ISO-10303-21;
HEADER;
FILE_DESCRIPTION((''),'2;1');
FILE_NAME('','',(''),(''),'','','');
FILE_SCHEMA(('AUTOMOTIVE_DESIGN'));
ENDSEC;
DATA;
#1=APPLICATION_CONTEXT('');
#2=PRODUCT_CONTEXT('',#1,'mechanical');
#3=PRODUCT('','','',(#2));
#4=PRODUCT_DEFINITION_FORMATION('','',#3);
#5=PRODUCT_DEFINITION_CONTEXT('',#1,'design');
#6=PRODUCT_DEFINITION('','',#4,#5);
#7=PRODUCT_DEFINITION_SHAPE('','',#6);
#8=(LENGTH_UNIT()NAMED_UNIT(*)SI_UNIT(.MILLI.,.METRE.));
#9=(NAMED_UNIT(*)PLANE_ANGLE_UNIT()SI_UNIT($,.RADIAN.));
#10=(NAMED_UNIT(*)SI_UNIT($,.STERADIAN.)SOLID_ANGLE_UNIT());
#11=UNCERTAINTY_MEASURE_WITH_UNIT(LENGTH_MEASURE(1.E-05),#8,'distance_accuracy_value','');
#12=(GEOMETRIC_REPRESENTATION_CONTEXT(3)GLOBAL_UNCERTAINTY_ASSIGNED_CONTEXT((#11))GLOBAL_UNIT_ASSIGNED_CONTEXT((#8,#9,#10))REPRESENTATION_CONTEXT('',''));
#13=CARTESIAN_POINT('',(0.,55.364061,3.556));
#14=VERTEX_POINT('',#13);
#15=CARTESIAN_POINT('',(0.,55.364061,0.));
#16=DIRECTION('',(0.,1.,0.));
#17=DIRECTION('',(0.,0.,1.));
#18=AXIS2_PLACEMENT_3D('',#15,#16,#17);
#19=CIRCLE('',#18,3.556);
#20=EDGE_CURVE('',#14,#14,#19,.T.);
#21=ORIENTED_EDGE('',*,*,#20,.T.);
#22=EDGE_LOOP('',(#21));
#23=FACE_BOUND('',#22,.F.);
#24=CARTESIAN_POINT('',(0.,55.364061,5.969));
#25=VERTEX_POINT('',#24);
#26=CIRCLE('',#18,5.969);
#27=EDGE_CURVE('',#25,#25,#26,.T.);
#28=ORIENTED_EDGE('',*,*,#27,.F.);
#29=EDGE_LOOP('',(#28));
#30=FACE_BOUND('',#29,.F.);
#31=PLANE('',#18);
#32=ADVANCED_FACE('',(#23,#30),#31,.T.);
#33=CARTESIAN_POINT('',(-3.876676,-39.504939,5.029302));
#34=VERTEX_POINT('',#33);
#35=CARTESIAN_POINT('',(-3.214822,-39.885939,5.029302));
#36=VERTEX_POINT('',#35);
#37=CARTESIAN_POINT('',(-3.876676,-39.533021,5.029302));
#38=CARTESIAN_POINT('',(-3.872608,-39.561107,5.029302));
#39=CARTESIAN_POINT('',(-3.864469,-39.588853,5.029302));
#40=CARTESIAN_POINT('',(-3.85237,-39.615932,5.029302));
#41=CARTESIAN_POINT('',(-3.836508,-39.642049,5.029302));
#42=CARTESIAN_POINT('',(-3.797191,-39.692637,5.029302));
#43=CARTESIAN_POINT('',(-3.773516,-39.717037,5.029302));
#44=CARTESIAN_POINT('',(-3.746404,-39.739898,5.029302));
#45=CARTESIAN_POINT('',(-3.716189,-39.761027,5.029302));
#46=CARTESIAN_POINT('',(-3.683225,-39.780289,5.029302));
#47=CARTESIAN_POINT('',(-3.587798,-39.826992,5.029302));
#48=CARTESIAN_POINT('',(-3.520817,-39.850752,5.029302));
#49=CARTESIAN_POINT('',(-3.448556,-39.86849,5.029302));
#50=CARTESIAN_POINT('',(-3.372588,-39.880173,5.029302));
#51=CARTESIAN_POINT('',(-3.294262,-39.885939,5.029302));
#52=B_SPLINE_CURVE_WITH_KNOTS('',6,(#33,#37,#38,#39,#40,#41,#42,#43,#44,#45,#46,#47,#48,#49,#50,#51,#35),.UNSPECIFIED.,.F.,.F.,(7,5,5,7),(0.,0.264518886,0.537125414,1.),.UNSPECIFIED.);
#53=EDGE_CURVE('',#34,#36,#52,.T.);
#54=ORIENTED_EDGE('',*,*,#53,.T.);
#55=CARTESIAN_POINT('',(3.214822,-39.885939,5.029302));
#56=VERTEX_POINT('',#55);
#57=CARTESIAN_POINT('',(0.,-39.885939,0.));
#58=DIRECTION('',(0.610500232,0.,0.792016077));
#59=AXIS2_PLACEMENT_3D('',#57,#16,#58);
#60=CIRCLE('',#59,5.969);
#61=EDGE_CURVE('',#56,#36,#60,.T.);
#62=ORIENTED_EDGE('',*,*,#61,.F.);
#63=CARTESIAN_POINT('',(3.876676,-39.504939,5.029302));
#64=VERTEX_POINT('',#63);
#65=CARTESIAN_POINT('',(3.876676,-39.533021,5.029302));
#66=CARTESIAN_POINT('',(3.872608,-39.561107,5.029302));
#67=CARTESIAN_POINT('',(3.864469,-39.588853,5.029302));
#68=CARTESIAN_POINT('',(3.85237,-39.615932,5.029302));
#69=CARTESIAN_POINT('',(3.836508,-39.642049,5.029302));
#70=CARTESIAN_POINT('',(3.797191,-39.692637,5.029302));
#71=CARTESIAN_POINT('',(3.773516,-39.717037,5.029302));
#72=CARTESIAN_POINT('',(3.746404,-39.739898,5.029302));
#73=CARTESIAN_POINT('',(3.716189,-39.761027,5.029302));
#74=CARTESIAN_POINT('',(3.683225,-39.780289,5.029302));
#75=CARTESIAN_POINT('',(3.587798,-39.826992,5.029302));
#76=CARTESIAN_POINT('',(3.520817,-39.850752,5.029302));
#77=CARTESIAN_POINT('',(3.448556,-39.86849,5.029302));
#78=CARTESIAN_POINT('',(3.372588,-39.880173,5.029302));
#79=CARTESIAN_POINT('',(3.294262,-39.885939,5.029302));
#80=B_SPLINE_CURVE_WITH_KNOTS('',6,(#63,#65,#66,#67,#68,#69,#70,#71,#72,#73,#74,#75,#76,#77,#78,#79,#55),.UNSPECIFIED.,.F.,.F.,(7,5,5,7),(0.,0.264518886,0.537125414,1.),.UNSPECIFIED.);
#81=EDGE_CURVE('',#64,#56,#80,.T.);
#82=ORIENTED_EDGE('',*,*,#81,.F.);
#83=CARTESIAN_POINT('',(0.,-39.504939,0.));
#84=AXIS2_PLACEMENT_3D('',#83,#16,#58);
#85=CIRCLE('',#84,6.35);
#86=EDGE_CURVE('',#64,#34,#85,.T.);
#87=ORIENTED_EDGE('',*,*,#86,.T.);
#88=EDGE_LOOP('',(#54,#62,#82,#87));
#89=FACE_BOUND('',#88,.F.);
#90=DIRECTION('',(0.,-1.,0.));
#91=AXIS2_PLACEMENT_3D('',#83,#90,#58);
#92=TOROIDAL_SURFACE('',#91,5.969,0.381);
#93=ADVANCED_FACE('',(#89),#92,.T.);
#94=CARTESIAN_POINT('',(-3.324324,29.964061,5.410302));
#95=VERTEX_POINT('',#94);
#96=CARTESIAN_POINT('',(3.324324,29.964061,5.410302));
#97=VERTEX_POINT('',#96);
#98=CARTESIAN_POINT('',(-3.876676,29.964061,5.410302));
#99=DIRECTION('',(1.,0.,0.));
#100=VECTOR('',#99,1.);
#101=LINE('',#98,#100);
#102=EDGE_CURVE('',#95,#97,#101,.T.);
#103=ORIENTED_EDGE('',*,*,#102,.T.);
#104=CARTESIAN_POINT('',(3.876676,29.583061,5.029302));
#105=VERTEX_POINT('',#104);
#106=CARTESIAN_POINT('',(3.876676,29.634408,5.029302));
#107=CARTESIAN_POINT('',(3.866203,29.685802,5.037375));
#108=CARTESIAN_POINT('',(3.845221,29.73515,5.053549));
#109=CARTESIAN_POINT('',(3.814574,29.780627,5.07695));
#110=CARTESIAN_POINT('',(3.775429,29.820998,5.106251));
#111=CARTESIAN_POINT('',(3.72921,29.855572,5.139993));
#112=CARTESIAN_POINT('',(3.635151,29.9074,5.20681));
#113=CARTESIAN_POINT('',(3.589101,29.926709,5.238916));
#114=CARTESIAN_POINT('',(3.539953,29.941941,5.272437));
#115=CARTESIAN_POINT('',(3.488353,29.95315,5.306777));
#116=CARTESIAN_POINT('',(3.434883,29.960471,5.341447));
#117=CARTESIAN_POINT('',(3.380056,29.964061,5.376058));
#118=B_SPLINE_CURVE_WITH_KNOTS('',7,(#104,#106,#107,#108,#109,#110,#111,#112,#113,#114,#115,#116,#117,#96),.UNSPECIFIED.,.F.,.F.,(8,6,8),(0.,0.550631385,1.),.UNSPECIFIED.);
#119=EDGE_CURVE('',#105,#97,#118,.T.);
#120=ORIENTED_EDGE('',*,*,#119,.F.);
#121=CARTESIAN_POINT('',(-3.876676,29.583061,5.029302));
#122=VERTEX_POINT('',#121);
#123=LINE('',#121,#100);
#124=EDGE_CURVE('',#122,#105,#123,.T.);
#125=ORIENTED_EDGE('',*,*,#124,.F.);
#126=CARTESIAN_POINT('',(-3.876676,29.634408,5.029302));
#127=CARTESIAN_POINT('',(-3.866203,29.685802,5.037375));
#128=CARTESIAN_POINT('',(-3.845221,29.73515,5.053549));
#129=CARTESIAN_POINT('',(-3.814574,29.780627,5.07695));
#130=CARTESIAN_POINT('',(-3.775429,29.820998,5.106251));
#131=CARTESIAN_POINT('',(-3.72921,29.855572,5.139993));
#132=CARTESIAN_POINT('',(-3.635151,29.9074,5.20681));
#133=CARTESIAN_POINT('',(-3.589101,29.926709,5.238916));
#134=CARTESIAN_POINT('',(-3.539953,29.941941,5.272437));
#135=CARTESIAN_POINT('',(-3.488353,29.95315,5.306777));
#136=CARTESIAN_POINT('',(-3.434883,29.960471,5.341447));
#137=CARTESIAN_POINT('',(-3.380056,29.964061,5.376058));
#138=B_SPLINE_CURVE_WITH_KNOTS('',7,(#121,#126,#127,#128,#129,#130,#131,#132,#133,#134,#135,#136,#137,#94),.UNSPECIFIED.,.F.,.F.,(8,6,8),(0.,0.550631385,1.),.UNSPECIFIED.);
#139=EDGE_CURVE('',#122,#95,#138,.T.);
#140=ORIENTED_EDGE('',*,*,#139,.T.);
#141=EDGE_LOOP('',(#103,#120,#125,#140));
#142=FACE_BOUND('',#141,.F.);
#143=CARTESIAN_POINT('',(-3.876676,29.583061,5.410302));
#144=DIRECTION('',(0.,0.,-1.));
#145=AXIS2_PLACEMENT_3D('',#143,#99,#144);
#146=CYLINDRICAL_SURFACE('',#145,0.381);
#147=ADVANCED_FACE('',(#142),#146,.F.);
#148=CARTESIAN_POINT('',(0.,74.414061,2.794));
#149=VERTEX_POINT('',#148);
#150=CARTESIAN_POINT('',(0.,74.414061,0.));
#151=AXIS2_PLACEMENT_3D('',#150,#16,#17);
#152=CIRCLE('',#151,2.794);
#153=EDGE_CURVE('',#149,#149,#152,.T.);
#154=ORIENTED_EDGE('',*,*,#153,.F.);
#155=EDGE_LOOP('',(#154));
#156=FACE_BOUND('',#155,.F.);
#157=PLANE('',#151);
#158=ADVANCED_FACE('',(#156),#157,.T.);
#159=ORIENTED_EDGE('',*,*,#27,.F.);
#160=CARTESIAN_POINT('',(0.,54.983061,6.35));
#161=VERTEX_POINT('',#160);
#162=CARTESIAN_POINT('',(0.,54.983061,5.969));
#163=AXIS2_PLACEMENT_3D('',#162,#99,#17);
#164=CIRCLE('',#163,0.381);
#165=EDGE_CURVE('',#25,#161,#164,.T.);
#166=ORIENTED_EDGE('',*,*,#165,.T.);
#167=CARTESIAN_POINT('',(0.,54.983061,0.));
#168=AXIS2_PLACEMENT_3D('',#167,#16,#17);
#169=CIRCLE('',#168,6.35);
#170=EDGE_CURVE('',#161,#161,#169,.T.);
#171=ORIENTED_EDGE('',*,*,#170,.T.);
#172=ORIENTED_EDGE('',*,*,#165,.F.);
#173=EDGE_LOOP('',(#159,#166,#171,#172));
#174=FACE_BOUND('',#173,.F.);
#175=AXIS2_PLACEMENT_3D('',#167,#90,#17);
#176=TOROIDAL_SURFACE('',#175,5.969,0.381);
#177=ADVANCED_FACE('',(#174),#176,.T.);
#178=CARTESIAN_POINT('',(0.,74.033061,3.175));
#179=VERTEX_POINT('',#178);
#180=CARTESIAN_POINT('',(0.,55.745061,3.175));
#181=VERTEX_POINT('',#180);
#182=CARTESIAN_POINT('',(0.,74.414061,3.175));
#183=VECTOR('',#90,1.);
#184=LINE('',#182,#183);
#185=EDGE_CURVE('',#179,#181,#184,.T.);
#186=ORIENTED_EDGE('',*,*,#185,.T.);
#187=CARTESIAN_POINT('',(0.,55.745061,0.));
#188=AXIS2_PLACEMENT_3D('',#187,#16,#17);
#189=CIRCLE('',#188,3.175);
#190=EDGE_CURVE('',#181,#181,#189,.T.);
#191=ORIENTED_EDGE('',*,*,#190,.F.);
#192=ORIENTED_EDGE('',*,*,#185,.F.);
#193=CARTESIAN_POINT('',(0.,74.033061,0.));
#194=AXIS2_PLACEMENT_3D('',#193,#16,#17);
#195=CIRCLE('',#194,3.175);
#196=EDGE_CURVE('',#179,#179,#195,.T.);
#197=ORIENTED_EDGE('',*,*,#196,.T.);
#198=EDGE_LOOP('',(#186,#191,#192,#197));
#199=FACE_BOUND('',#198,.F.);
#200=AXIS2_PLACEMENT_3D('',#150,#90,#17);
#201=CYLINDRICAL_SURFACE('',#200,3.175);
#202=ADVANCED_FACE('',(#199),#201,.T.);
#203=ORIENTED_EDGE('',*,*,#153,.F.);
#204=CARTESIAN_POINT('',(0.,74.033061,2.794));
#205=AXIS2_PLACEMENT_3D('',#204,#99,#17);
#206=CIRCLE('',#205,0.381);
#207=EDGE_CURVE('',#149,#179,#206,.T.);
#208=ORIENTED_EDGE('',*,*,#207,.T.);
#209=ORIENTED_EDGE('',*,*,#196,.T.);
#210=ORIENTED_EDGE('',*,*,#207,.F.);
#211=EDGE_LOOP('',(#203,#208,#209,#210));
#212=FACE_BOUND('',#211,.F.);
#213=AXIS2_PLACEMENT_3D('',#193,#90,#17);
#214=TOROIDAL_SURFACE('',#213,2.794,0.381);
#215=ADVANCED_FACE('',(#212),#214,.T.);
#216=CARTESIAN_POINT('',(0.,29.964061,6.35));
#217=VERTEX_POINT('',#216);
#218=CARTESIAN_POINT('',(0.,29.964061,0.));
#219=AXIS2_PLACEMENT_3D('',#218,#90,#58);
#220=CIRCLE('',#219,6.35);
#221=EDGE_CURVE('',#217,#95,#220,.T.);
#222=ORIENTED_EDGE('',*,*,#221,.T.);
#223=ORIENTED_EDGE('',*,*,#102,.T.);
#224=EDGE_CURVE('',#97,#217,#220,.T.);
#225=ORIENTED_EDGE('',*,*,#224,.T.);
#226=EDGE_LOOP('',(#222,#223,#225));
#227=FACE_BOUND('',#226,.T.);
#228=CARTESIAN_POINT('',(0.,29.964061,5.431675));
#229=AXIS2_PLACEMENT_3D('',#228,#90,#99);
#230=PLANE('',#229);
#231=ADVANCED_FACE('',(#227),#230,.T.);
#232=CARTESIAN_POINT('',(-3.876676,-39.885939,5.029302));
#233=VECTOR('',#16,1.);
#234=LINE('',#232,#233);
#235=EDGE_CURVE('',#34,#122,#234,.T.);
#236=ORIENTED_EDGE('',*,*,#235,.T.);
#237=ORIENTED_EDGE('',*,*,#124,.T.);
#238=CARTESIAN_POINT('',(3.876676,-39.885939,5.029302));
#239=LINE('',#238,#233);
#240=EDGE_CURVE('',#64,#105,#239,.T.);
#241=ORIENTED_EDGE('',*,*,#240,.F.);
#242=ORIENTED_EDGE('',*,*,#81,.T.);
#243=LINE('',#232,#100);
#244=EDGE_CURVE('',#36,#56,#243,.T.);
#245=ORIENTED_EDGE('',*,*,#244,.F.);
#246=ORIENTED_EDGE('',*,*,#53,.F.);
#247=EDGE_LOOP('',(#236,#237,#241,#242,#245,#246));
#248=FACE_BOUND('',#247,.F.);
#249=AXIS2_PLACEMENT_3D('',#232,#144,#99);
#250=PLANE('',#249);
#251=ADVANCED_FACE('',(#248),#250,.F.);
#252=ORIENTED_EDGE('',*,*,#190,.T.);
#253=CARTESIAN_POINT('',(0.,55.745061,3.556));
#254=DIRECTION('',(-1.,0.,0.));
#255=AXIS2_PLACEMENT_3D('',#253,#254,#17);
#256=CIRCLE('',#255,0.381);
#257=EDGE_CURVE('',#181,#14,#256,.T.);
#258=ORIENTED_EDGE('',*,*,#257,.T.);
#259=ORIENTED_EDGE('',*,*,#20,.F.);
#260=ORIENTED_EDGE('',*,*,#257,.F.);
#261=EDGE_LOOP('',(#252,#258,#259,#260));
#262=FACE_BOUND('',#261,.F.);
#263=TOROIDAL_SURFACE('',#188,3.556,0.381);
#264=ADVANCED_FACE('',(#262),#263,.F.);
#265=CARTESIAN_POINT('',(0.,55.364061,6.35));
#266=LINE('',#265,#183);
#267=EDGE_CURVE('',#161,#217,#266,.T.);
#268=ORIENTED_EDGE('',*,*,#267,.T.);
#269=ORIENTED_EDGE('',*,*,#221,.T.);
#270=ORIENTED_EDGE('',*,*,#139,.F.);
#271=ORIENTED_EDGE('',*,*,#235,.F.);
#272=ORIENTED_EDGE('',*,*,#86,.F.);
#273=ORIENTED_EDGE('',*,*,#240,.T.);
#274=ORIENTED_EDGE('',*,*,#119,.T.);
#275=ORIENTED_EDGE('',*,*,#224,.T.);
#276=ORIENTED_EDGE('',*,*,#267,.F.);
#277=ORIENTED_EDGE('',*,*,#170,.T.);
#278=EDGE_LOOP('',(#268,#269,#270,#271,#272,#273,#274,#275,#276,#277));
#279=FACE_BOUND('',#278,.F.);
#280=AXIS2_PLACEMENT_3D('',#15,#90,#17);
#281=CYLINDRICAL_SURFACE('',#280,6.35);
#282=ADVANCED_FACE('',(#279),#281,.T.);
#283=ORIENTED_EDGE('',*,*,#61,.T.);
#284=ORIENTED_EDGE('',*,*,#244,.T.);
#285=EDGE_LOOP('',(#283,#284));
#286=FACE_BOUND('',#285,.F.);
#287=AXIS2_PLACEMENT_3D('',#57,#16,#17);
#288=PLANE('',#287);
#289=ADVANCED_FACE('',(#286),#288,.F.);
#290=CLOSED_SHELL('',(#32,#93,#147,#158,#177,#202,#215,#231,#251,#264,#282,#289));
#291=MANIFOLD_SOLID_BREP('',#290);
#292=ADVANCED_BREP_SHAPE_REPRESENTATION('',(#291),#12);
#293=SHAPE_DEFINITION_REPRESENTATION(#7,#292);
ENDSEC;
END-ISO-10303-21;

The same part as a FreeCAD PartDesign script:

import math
import FreeCAD as App
import Part
import Sketcher

V = App.Vector
Q = App.Units.Quantity


def edges_at(feature, points):
    """Names of the edges that pass closest to the given points."""
    edges = feature.Shape.Edges
    near = lambda p: min(range(len(edges)), key=lambda i: edges[i].distToShape(Part.Vertex(*p))[0])
    return sorted({f"Edge{near(p) + 1}" for p in points})


def add_polygon(sketch, points):
    """Adds a closed chain of lines whose ends are joined by coincident constraints."""
    first, n = sketch.GeometryCount, len(points)
    for a, b in zip(points, points[1:] + points[:1]):
        sketch.addGeometry(Part.LineSegment(App.Vector(*a, 0), App.Vector(*b, 0)), False)
    for i in range(n):
        sketch.addConstraint(Sketcher.Constraint("Coincident", first + i, 2, first + (i + 1) % n, 1))

doc = App.newDocument("Part")
body = doc.addObject("PartDesign::Body", "Body")

sketch1 = body.newObject("Sketcher::SketchObject", "Sketch")
sketch1.AttachmentSupport = (doc.getObject("YZ_Plane"), [""])
sketch1.MapMode = "FlatFace"
add_polygon(sketch1, [(74.4, 0), (74.4, 3.2), (55.4, 3.2), (55.4, 6.3), (-39.9, 6.3), (-39.9, 0)])
sketch1.addConstraint(Sketcher.Constraint("Vertical", 0))
sketch1.addConstraint(Sketcher.Constraint("Horizontal", 1))
sketch1.addConstraint(Sketcher.Constraint("Vertical", 2))
sketch1.addConstraint(Sketcher.Constraint("Horizontal", 3))
sketch1.addConstraint(Sketcher.Constraint("Vertical", 4))
sketch1.addConstraint(Sketcher.Constraint("Horizontal", 5))
sketch1.addConstraint(Sketcher.Constraint("PointOnObject", 4, 2, -1))
sketch1.addConstraint(Sketcher.Constraint("Equal", 0, 2))
sketch1.addConstraint(Sketcher.Constraint("DistanceX", 5, 1, 5, 2, Q("4.5 in")))
sketch1.addConstraint(Sketcher.Constraint("DistanceX", 1, 2, 1, 1, Q("0.75 in")))
sketch1.addConstraint(Sketcher.Constraint("DistanceY", 4, 2, 4, 1, Q("0.25 in")))
sketch1.addConstraint(Sketcher.Constraint("DistanceX", -1, 1, 0, 2, 74.414061))
revolution = body.newObject("PartDesign::Revolution", "Revolution")
revolution.Profile = sketch1
revolution.ReferenceAxis = (sketch1, ["H_Axis"])
revolution.Angle = 360

sketch2 = body.newObject("Sketcher::SketchObject", "Sketch001")
sketch2.AttachmentSupport = (doc.getObject("XZ_Plane"), [""])
sketch2.MapMode = "FlatFace"
sketch2.AttachmentOffset = App.Placement(V(0, 0, 39.885939), App.Rotation())
sketch2.addGeometry(Part.ArcOfCircle(Part.Circle(V(0, 0, 0), V(0, 0, 1), 6), math.radians(52), math.radians(128)), False)
sketch2.addGeometry(Part.LineSegment(V(-4, 5, 0), V(4, 5, 0)), False)
sketch2.addConstraint(Sketcher.Constraint("Coincident", 0, 1, 1, 2))
sketch2.addConstraint(Sketcher.Constraint("Coincident", 1, 1, 0, 2))
sketch2.addConstraint(Sketcher.Constraint("Horizontal", 1))
sketch2.addConstraint(Sketcher.Constraint("Coincident", 0, 3, -1, 1))
sketch2.addConstraint(Sketcher.Constraint("Radius", 0, Q("0.25 in")))
sketch2.addConstraint(Sketcher.Constraint("DistanceX", 1, 1, 1, 2, 7.753353))
pocket1 = body.newObject("PartDesign::Pocket", "Pocket")
pocket1.Profile = sketch2
pocket1.Length = Q("2.75 in")
doc.recompute()

fillet = body.newObject("PartDesign::Fillet", "Fillet")
fillet.Base = (pocket1, edges_at(pocket1, [
    (0, 55.364, -6.35),
    (0, 74.414, -3.175),
    (0, 55.364, -3.175),
    (0, 64.889, 3.175),
]))
fillet.Radius = Q("0.015 in")
doc.recompute()

fillet2 = body.newObject("PartDesign::Fillet", "Fillet001")
fillet2.Base = (fillet, edges_at(fillet, [(0, -39.886, -6.35)]))
fillet2.Radius = Q("0.015 in")
doc.recompute()

fillet3 = body.newObject("PartDesign::Fillet", "Fillet002")
fillet3.Base = (fillet2, edges_at(fillet2, [(0, 29.964, 5.029)]))
fillet3.Radius = Q("0.015 in")

doc.recompute()
